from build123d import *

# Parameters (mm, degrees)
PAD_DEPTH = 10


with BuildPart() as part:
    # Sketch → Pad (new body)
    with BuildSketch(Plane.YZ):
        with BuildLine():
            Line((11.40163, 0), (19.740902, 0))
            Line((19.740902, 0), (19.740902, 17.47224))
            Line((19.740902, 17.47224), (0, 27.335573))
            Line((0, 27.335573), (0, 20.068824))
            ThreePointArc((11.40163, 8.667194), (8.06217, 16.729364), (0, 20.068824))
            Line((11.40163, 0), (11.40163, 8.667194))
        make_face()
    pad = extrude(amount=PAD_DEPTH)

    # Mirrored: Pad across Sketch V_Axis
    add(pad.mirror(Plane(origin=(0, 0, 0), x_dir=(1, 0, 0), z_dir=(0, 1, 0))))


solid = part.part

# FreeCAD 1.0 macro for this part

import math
import FreeCAD as App
import Part
import Sketcher

doc = App.newDocument("Part")
params = doc.addObject("Spreadsheet::Sheet", "Params")
for row, (alias, value) in enumerate([
    ("pad1_length", "10 mm"),
], start=1):
    params.set(f"A{row}", alias)
    params.set(f"B{row}", "=" + value)
    params.setAlias(f"B{row}", alias)

body = doc.addObject("PartDesign::Body", "Body")

# Sketch on YZ plane
sketch1 = body.newObject("Sketcher::SketchObject", "Sketch")
sketch1.AttachmentSupport = (doc.getObject("YZ_Plane"), [""])
sketch1.MapMode = "FlatFace"
sketch1.addGeometry(Part.LineSegment(App.Vector(11, 0, 0), App.Vector(20, 0, 0)), False)
sketch1.addGeometry(Part.LineSegment(App.Vector(20, 0, 0), App.Vector(20, 17, 0)), False)
sketch1.addGeometry(Part.LineSegment(App.Vector(20, 17, 0), App.Vector(0, 27, 0)), False)
sketch1.addGeometry(Part.LineSegment(App.Vector(0, 27, 0), App.Vector(0, 20, 0)), False)
sketch1.addGeometry(Part.ArcOfCircle(Part.Circle(App.Vector(0, 9, 0), App.Vector(0, 0, 1), 11), math.radians(0), math.radians(90)), False)
sketch1.addGeometry(Part.LineSegment(App.Vector(11, 9, 0), App.Vector(11, 0, 0)), False)
sketch1.addConstraint(Sketcher.Constraint("Coincident", 0, 2, 1, 1))
sketch1.addConstraint(Sketcher.Constraint("Coincident", 1, 2, 2, 1))
sketch1.addConstraint(Sketcher.Constraint("Coincident", 2, 2, 3, 1))
sketch1.addConstraint(Sketcher.Constraint("Coincident", 3, 2, 4, 2))
sketch1.addConstraint(Sketcher.Constraint("Tangent", 4, 1, 5, 1))
sketch1.addConstraint(Sketcher.Constraint("Coincident", 5, 2, 0, 1))
sketch1.addConstraint(Sketcher.Constraint("Horizontal", 0))
sketch1.addConstraint(Sketcher.Constraint("Vertical", 1))
sketch1.addConstraint(Sketcher.Constraint("Vertical", 3))
sketch1.addConstraint(Sketcher.Constraint("Vertical", 5))
sketch1.addConstraint(Sketcher.Constraint("PointOnObject", 4, 3, -2))
sketch1.addConstraint(Sketcher.Constraint("PointOnObject", 0, 2, -1))
sketch1.addConstraint(Sketcher.Constraint("PointOnObject", 2, 2, -2))
sketch1.addConstraint(Sketcher.Constraint("Radius", 4, 11.40163))
sketch1.addConstraint(Sketcher.Constraint("DistanceX", 0, 1, 0, 2, 8.339272))
sketch1.addConstraint(Sketcher.Constraint("DistanceY", 1, 1, 1, 2, 17.47224))
sketch1.addConstraint(Sketcher.Constraint("DistanceY", 3, 2, 3, 1, 7.266749))
sketch1.addConstraint(Sketcher.Constraint("DistanceY", 5, 2, 5, 1, 8.667194))
pad1 = body.newObject("PartDesign::Pad", "Pad")
pad1.Profile = sketch1
pad1.setExpression("Length", "Params.pad1_length")
doc.recompute()

mirrored = body.newObject("PartDesign::Mirrored", "Mirrored")
mirrored.Originals = [pad1]
mirrored.MirrorPlane = (doc.getObject("XZ_Plane"), [""])
body.Tip = mirrored

doc.recompute()
